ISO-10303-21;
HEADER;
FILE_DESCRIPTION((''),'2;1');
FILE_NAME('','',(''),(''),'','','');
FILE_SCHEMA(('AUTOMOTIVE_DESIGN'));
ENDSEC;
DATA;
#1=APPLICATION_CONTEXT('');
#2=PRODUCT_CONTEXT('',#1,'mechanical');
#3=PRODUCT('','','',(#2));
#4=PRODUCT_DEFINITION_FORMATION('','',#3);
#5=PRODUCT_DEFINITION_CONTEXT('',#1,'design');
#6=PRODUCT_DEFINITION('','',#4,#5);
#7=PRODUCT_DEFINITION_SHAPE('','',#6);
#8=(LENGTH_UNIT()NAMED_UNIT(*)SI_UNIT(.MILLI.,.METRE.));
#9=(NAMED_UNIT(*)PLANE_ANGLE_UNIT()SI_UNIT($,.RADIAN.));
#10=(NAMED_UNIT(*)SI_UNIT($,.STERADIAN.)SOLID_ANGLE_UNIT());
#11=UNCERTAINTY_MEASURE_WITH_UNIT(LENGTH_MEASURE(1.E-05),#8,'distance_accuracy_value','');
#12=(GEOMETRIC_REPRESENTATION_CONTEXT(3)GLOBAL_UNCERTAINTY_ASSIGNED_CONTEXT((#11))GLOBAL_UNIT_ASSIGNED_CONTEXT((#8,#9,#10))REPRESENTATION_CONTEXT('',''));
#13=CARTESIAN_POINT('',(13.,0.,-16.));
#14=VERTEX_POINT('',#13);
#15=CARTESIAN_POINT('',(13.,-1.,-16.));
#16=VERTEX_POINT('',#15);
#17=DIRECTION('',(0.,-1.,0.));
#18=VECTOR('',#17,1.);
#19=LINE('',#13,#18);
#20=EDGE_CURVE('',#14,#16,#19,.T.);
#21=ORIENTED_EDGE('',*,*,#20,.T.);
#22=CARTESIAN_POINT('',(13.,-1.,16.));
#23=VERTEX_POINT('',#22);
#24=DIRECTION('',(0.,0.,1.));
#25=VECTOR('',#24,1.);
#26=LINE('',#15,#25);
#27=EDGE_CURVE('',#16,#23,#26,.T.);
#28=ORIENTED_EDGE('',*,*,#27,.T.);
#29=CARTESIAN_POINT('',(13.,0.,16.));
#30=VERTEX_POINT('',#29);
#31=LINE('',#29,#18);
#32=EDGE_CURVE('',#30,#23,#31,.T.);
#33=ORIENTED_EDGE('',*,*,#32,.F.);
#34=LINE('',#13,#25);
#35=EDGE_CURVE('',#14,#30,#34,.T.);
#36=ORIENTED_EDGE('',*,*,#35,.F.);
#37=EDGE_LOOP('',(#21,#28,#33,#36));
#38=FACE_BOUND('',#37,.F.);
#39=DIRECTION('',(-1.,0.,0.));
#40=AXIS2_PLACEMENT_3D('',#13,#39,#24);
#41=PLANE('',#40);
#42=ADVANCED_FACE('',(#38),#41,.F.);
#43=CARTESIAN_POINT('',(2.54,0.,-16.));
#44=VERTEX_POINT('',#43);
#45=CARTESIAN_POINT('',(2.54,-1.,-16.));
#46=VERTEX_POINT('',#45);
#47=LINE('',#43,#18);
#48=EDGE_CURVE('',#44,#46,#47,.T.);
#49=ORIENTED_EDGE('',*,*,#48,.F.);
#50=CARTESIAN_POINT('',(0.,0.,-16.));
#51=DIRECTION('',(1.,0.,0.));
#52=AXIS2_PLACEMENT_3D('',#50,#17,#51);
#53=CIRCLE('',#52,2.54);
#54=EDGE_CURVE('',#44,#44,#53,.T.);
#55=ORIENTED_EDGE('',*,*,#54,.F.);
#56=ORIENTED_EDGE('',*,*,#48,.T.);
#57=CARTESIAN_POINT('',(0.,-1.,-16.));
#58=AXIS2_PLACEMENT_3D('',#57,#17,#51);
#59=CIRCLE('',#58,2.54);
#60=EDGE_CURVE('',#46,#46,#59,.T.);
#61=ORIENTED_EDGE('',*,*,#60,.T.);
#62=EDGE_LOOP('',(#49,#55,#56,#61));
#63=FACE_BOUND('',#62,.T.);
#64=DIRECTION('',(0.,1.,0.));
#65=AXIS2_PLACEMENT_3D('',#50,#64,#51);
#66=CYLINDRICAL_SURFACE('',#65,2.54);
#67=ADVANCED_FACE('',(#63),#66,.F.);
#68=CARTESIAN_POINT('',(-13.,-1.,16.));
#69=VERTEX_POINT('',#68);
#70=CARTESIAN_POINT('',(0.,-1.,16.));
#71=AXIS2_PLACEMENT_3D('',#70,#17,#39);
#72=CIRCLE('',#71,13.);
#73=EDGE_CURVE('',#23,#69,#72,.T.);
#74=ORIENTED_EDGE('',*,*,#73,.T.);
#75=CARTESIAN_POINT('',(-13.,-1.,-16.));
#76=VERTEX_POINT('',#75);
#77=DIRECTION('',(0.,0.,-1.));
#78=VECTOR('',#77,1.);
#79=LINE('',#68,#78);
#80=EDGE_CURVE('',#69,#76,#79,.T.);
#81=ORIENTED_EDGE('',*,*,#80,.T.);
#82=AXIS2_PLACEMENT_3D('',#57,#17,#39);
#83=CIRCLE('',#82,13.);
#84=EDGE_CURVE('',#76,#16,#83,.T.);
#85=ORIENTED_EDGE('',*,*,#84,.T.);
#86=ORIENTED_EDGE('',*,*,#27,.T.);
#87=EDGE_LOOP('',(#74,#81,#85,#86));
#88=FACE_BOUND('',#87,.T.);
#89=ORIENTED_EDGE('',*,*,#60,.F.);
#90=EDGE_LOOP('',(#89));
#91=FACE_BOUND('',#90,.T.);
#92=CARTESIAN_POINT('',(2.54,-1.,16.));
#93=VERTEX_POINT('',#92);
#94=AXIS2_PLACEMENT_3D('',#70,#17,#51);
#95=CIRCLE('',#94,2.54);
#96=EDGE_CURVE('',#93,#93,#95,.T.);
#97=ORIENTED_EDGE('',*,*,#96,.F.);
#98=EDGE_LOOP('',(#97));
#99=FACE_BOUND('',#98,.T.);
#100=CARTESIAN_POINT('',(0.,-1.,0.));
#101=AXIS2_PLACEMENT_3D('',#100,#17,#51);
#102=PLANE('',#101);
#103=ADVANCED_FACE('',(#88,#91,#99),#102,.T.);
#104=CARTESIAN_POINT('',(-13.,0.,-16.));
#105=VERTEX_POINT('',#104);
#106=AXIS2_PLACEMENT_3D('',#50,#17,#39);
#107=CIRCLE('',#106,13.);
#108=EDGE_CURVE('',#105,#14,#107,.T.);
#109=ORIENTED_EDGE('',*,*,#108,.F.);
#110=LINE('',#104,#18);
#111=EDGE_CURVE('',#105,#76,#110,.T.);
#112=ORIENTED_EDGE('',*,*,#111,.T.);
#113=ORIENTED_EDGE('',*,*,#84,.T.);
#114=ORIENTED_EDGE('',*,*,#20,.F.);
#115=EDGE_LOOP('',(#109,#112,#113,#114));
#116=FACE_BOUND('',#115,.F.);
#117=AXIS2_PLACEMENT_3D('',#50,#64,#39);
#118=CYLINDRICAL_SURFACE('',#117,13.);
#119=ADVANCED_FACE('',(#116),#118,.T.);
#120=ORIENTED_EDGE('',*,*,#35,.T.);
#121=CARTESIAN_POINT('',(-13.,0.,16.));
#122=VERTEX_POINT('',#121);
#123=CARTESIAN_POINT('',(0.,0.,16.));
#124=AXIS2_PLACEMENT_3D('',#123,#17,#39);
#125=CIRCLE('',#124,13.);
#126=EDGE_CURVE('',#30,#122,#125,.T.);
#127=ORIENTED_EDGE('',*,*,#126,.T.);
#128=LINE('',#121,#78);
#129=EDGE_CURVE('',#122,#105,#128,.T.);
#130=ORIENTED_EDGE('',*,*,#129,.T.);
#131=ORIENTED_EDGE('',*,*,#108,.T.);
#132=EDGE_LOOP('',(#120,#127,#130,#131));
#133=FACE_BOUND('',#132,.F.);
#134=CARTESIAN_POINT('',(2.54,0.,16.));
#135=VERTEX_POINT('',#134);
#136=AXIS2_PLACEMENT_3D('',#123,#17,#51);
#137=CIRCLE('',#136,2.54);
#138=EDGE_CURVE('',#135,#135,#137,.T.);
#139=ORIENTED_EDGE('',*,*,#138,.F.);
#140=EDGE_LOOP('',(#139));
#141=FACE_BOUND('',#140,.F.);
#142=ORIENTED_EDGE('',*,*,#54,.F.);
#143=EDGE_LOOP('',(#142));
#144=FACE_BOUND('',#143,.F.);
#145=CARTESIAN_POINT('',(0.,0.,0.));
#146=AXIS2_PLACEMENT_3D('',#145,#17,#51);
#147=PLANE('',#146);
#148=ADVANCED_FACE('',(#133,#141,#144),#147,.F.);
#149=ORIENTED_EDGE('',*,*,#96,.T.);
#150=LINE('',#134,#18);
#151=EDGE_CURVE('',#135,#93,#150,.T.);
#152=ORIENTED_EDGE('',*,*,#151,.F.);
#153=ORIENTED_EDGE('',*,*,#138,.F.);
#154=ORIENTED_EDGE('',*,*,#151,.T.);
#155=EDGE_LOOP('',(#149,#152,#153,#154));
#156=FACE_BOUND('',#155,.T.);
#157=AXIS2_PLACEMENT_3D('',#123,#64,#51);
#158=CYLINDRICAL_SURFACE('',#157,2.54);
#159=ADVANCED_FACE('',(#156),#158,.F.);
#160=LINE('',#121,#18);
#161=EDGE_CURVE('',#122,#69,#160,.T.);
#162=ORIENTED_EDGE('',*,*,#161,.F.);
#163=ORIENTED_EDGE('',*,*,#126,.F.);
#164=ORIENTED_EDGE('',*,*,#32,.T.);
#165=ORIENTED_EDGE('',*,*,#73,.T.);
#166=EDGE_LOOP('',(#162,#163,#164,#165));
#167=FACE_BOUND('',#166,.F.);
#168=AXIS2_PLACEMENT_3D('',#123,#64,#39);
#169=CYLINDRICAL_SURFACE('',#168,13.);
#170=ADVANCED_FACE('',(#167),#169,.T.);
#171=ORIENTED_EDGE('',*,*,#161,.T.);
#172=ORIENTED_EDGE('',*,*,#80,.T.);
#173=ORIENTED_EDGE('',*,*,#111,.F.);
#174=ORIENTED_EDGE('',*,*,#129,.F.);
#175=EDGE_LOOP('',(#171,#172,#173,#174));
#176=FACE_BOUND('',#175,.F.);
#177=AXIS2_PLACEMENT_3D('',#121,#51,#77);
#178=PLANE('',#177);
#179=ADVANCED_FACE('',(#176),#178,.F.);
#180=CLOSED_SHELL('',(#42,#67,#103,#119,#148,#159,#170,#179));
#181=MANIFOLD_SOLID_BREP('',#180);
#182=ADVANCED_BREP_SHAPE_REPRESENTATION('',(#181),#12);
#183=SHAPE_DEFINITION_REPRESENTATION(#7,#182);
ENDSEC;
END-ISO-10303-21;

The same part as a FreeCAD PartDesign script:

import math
import FreeCAD as App
import Part
import Sketcher
Q = App.Units.Quantity

doc = App.newDocument("Part")
params = doc.addObject("Spreadsheet::Sheet", "Params")
for row, (alias, value) in enumerate([
    ("sketch1_radius", "13 mm"),
    ("sketch1_diameter", "5.08 mm"),
    ("sketch1_height", "32 mm"),
    ("pad1_length", "1 mm"),
], start=1):
    params.set(f"A{row}", alias)
    params.set(f"B{row}", "=" + value)
    params.setAlias(f"B{row}", alias)

body = doc.addObject("PartDesign::Body", "Body")

sketch1 = body.newObject("Sketcher::SketchObject", "Sketch")
sketch1.AttachmentSupport = (doc.getObject("XZ_Plane"), [""])
sketch1.MapMode = "FlatFace"
sketch1.addGeometry([
    Part.LineSegment(App.Vector(-13, 16, 0), App.Vector(-13, -16, 0)),
    Part.ArcOfCircle(Part.Circle(App.Vector(0, -16, 0), App.Vector(0, 0, 1), 13), math.radians(180), math.radians(360)),
    Part.LineSegment(App.Vector(13, -16, 0), App.Vector(13, 16, 0)),
    Part.ArcOfCircle(Part.Circle(App.Vector(0, 16, 0), App.Vector(0, 0, 1), 13), math.radians(0), math.radians(180)),
    Part.Circle(App.Vector(0, -16, 0), App.Vector(0, 0, 1), 2.5),
    Part.Circle(App.Vector(0, 16, 0), App.Vector(0, 0, 1), 2.5),
], False)
sketch1.addConstraint([
    Sketcher.Constraint("Tangent", 0, 2, 1, 1),
    Sketcher.Constraint("Tangent", 1, 2, 2, 1),
    Sketcher.Constraint("Tangent", 2, 2, 3, 1),
    Sketcher.Constraint("Tangent", 3, 2, 0, 1),
    Sketcher.Constraint("Vertical", 0),
    Sketcher.Constraint("Vertical", 2),
    Sketcher.Constraint("Coincident", 4, 3, 1, 3),
    Sketcher.Constraint("Coincident", 5, 3, 3, 3),
    Sketcher.Constraint("Equal", 4, 5),
    Sketcher.Constraint("Symmetric", 1, 3, 3, 3, -1, 1),
    Sketcher.Constraint("Radius", 1, Q("13 mm")),
    Sketcher.Constraint("Diameter", 4, Q("5.08 mm")),
    Sketcher.Constraint("DistanceY", 0, 2, 0, 1, Q("32 mm")),
])
sketch1.setExpression("Constraints[10]", "Params.sketch1_radius")
sketch1.setExpression("Constraints[11]", "Params.sketch1_diameter")
sketch1.setExpression("Constraints[12]", "Params.sketch1_height")
pad1 = body.newObject("PartDesign::Pad", "Pad")
pad1.Profile = sketch1
pad1.setExpression("Length", "Params.pad1_length")

doc.recompute()
